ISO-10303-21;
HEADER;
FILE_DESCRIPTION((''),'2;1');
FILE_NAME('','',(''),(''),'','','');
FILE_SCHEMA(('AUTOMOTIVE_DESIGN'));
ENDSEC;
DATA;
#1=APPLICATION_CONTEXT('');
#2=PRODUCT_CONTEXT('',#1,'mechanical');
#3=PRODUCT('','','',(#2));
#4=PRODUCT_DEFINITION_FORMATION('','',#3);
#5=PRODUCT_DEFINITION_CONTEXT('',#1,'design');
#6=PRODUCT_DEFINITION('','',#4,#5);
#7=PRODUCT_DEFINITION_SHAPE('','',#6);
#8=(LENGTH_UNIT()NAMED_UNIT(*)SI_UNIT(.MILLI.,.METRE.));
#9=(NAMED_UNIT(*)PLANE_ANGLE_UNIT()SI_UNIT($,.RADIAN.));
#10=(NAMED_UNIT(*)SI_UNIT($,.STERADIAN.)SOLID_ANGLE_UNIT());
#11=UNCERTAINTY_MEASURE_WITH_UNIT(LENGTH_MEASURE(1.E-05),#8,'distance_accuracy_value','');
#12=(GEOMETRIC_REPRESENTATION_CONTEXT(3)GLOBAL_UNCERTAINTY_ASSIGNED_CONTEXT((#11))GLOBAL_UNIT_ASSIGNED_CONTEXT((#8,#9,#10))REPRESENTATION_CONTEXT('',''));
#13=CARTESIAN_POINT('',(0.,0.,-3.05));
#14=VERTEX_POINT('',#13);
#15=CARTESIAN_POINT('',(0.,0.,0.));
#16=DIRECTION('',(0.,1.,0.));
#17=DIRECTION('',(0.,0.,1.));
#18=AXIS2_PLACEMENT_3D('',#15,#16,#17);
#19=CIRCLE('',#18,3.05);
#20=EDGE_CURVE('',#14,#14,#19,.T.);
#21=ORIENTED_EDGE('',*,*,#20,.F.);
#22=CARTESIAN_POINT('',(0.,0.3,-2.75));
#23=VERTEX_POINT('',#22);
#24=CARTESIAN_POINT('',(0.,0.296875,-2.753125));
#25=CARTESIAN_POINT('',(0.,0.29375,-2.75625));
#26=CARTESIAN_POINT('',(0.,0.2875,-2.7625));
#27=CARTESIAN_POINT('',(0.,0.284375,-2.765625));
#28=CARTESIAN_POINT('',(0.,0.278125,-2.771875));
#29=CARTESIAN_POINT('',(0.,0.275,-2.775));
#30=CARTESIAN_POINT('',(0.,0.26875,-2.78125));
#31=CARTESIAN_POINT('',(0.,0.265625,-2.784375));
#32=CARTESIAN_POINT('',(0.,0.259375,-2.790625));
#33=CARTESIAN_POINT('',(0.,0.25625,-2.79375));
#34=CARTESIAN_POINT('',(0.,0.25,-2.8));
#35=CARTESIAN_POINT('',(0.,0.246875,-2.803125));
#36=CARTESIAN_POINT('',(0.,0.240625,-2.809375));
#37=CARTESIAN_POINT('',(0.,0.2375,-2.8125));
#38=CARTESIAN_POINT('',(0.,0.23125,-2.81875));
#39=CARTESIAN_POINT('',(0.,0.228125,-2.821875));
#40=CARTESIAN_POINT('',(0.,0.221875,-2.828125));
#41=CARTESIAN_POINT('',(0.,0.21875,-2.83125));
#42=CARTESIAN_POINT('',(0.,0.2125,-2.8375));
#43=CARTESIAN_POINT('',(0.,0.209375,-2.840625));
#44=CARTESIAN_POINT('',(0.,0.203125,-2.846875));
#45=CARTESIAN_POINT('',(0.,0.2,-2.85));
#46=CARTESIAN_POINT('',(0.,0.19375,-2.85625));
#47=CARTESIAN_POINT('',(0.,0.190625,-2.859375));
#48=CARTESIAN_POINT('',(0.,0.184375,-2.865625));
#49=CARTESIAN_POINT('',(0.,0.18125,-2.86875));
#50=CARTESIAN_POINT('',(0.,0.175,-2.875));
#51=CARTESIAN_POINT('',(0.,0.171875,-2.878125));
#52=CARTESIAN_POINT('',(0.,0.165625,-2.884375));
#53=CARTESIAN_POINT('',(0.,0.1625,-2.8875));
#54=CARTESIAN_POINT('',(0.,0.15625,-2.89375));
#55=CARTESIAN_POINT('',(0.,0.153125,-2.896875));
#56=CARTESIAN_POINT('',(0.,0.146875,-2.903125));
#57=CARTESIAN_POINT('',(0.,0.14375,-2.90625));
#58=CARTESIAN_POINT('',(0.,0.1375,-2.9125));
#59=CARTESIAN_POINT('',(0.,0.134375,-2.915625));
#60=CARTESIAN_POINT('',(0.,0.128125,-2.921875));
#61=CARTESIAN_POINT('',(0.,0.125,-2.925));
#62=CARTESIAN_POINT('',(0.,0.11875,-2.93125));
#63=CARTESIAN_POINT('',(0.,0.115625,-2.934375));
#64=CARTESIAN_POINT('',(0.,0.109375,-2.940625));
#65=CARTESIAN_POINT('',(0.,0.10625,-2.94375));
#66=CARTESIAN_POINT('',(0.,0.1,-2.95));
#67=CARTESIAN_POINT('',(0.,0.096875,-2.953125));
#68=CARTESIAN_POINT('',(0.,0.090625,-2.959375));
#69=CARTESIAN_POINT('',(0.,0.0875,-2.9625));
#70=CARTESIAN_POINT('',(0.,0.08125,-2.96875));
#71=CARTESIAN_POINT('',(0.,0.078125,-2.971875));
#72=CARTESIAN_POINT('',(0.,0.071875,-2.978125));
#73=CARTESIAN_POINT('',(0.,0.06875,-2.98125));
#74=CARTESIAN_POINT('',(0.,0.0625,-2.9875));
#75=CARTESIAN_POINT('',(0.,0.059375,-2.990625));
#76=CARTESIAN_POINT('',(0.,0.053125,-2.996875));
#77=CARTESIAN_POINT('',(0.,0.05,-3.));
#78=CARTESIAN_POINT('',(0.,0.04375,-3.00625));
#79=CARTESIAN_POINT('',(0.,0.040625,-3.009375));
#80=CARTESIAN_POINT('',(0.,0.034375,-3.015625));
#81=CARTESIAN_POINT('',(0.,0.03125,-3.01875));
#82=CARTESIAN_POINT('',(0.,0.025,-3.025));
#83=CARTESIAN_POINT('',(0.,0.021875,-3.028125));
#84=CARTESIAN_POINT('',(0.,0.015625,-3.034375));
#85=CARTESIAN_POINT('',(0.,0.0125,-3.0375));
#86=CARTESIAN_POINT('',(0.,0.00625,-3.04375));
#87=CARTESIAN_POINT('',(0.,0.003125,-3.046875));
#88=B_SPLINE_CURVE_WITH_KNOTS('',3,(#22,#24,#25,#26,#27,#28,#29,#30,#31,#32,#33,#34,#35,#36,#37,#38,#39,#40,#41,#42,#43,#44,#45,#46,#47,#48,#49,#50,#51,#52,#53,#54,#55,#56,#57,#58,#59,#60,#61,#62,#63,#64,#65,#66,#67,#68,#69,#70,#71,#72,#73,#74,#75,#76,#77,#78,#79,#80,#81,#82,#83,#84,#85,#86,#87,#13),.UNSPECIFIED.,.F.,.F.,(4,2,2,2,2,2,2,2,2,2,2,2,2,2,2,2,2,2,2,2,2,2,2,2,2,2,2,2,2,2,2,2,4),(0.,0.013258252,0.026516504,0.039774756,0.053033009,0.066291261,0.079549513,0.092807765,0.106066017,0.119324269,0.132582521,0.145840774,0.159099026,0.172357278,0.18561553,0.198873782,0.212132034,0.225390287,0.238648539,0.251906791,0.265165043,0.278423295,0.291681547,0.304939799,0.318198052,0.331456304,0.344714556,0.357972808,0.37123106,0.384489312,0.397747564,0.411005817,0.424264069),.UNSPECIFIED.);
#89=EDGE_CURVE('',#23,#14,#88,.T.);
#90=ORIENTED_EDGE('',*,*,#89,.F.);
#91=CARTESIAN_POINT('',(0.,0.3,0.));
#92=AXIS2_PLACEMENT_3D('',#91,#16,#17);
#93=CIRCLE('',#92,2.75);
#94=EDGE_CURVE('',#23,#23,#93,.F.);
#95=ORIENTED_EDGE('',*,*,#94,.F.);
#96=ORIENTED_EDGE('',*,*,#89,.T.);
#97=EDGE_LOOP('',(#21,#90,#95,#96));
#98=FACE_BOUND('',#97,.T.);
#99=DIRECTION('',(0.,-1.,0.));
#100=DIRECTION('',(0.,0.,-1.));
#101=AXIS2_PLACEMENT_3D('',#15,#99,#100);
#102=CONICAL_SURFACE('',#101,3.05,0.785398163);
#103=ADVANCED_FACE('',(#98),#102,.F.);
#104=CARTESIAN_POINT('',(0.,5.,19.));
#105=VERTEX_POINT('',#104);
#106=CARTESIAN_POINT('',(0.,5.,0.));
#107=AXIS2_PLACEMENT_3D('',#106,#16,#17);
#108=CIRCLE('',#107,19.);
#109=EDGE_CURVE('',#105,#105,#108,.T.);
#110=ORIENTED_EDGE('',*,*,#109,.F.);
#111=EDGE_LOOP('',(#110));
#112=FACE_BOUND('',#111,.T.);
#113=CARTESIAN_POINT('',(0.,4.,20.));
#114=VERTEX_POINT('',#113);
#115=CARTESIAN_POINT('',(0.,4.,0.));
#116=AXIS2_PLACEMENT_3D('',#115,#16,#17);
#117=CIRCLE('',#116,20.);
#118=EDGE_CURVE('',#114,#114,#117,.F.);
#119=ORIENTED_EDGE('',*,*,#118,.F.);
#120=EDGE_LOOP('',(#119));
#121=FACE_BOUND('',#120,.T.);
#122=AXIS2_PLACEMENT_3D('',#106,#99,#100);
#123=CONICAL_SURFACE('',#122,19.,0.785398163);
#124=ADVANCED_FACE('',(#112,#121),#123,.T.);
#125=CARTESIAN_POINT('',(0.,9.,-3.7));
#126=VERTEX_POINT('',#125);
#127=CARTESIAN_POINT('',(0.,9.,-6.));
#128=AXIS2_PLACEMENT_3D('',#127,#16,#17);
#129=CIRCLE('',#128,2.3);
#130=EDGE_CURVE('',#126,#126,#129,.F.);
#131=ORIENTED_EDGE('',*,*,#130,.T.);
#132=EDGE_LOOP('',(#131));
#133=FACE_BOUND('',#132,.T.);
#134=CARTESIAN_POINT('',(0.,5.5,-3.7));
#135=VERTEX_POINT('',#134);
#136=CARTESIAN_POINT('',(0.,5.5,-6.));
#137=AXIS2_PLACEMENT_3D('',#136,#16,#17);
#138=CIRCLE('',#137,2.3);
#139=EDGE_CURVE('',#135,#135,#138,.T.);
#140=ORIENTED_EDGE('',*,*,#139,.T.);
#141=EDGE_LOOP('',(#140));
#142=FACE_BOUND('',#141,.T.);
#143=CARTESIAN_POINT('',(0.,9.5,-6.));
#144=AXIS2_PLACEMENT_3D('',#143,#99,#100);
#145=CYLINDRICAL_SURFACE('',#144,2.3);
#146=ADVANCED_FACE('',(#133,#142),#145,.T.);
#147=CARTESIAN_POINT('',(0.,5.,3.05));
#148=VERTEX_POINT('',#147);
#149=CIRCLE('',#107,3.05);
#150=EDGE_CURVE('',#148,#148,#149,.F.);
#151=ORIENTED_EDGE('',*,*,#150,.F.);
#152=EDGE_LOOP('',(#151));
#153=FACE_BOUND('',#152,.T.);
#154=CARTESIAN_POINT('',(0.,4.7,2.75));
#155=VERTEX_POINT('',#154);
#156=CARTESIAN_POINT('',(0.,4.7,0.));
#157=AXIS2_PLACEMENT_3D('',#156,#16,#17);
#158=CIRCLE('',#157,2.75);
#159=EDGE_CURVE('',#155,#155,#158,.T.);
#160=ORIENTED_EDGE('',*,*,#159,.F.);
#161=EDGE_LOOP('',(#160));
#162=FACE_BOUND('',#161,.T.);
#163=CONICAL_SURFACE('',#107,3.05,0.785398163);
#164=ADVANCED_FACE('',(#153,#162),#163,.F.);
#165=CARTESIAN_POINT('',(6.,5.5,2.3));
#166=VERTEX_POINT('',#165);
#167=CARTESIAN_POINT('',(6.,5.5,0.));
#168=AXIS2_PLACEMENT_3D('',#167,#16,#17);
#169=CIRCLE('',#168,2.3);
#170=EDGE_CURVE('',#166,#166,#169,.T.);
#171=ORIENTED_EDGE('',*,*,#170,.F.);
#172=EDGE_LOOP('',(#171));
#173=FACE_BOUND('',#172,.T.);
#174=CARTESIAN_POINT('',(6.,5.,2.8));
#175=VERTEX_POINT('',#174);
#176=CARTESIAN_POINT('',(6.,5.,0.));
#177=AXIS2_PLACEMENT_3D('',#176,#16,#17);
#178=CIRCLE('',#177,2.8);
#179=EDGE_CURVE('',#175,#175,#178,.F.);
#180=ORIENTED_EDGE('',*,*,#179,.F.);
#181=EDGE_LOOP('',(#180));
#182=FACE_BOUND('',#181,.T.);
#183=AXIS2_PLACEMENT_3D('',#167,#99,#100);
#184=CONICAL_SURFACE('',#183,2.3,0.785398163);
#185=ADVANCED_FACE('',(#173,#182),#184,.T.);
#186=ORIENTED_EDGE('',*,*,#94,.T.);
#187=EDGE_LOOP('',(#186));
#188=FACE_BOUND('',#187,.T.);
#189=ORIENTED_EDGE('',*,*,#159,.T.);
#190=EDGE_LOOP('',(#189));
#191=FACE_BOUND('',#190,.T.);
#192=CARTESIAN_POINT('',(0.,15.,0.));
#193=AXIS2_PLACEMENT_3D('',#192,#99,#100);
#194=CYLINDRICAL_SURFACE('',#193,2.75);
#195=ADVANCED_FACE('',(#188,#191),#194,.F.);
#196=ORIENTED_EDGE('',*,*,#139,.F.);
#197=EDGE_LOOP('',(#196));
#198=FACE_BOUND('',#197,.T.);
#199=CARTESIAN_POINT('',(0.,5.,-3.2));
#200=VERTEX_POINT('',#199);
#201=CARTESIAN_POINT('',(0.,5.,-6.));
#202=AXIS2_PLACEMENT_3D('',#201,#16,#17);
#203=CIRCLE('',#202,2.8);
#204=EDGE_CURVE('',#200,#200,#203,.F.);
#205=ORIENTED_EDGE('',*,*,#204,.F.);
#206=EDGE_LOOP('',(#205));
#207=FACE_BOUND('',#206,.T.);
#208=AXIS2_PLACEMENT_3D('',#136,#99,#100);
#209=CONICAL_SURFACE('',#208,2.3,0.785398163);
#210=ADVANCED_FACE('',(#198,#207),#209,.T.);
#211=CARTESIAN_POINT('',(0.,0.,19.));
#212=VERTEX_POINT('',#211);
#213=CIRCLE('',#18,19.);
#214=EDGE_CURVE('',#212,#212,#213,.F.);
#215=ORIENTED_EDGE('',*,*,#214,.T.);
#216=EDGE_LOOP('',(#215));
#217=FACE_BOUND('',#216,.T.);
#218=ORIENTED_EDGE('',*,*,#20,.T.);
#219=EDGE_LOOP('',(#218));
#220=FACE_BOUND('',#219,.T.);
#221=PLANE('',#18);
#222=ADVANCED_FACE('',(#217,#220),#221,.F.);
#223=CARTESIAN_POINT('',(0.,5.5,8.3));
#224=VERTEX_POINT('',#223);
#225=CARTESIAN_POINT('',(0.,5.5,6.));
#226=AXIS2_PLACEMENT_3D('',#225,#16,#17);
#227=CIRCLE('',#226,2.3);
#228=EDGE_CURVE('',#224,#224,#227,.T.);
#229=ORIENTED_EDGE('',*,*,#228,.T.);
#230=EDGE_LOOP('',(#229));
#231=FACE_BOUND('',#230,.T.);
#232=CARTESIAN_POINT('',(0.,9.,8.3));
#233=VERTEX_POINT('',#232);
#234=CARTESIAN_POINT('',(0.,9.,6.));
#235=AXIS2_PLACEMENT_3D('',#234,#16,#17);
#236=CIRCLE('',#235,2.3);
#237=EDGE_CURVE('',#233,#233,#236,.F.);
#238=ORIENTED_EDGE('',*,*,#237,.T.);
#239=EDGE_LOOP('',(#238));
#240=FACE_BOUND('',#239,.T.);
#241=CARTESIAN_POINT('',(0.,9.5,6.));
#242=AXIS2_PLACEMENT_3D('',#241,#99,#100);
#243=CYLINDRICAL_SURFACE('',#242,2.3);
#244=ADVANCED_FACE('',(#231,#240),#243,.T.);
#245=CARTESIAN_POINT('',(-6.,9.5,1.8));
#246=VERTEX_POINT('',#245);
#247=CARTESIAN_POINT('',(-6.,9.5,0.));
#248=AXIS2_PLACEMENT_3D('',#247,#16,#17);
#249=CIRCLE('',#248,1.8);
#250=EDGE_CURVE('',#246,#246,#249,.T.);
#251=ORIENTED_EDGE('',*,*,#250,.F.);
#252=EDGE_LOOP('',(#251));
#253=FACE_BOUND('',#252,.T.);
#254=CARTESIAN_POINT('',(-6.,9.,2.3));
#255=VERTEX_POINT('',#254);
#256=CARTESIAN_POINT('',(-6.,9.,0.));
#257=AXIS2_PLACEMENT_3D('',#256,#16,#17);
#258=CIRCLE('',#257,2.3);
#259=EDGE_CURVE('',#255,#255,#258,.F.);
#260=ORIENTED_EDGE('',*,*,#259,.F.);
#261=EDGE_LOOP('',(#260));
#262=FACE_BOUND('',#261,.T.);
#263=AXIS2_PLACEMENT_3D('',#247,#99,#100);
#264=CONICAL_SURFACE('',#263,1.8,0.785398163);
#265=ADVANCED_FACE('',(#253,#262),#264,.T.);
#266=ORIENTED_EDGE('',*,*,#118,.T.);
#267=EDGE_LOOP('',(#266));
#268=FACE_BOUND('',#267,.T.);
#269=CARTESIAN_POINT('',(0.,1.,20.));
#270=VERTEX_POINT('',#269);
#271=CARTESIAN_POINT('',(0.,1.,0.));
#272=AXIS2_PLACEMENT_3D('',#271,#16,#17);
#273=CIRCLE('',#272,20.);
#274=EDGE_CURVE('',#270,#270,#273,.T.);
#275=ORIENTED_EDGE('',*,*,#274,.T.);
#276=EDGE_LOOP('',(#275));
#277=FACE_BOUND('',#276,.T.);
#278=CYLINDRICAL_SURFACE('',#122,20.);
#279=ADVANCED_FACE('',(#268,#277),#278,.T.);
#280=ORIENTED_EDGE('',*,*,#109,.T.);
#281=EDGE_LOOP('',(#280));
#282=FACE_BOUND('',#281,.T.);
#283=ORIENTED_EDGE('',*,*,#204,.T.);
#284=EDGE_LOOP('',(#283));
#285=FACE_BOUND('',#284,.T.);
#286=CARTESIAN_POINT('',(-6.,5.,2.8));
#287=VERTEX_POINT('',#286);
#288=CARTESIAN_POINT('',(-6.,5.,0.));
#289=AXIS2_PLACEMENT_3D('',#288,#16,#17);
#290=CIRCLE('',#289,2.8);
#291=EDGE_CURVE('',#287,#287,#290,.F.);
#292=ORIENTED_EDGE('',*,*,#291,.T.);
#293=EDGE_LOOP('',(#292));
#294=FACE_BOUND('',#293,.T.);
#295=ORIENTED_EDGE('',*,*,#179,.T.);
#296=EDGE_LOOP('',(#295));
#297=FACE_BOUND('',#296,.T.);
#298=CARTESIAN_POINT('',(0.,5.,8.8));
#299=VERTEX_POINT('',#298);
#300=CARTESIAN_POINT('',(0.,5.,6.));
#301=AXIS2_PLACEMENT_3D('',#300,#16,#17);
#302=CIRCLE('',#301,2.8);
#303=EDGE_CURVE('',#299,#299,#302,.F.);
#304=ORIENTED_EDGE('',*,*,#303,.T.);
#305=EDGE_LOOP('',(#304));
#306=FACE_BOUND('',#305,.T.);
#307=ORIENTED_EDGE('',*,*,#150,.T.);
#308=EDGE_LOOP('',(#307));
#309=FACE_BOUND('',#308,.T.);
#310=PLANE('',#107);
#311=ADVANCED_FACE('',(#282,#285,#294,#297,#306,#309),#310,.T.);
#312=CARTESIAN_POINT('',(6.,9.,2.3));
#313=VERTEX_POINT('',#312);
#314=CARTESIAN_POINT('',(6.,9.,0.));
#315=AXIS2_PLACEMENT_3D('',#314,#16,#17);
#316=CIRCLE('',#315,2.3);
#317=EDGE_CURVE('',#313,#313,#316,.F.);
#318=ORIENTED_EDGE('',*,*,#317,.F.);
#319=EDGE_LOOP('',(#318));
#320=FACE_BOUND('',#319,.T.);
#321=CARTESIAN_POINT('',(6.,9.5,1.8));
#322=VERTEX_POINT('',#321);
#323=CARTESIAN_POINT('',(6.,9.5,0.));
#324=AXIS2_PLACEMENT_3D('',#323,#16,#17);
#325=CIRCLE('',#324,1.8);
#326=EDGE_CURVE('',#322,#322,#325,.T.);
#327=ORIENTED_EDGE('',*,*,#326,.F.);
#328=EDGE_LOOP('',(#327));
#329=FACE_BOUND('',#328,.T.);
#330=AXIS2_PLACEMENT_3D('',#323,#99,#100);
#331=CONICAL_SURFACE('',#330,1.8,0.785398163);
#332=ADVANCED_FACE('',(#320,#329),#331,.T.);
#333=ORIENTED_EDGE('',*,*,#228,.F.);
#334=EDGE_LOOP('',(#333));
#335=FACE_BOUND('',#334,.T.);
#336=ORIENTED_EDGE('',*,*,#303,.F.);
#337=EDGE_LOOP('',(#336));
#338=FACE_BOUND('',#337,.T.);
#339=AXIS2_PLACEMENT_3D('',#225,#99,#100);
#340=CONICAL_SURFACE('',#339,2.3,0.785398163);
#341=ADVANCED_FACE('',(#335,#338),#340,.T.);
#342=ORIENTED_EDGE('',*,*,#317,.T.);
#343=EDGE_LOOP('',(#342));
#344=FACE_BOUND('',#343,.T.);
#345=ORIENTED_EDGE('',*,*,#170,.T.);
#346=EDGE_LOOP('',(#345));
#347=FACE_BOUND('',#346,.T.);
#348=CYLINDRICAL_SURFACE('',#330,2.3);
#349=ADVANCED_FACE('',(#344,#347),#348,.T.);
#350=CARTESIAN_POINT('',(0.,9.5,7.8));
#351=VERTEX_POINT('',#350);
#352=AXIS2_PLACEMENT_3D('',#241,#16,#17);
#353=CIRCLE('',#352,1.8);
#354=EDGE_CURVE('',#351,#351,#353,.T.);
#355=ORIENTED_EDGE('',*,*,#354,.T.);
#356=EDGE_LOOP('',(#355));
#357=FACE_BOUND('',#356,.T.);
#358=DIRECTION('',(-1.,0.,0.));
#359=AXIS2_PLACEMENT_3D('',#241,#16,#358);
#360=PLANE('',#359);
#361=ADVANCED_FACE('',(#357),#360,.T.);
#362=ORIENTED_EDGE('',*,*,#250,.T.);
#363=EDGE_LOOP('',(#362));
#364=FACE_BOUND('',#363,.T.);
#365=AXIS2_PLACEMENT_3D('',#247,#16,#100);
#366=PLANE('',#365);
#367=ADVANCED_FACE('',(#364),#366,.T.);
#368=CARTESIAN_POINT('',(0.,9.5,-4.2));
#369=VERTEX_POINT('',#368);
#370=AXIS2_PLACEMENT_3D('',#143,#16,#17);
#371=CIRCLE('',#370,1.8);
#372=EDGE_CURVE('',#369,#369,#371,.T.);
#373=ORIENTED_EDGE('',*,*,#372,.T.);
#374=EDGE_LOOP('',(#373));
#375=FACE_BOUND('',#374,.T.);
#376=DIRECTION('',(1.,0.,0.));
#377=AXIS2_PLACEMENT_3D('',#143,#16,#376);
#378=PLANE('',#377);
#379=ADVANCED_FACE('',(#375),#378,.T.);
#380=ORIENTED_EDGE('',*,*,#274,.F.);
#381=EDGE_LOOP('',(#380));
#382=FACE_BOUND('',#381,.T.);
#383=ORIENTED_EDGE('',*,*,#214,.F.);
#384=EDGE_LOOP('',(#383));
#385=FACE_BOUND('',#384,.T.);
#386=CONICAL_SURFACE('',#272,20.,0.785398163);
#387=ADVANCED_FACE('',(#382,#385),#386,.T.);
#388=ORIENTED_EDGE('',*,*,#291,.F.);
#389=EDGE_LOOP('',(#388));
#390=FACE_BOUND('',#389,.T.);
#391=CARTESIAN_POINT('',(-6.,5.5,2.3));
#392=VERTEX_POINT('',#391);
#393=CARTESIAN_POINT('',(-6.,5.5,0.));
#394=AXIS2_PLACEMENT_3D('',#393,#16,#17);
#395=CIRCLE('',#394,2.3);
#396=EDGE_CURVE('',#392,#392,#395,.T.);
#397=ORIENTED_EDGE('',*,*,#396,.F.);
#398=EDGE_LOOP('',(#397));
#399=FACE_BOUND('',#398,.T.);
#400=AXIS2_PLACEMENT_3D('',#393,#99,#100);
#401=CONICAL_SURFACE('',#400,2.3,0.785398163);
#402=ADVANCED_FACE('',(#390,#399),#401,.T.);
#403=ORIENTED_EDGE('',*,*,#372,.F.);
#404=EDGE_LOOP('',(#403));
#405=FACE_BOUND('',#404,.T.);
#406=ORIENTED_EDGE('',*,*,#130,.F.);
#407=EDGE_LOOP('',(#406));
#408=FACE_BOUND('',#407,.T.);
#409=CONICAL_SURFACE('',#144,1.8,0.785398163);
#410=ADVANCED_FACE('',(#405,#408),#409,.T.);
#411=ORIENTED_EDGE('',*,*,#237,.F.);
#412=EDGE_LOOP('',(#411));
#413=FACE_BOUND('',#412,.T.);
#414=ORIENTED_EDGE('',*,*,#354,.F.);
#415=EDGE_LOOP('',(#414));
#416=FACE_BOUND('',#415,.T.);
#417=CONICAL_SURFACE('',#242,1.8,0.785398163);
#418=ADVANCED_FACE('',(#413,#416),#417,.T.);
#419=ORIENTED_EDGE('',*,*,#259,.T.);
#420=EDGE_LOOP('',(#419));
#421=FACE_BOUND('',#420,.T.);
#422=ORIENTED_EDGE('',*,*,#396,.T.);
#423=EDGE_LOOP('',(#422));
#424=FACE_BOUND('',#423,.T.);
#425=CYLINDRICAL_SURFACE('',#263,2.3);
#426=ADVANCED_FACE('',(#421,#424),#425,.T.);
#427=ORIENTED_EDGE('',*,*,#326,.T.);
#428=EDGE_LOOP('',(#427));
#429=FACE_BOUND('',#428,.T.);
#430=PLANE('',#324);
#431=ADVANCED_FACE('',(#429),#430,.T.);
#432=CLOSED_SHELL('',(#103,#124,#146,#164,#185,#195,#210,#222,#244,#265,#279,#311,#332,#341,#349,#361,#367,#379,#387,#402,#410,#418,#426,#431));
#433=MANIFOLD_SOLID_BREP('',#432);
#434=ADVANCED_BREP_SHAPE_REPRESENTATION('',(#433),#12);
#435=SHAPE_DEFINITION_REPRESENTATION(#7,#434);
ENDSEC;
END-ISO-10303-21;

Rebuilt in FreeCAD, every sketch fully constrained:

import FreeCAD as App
import Part
import Sketcher


def edges_at(feature, points):
    """Names of the edges that pass closest to the given points."""
    edges = feature.Shape.Edges
    near = lambda p: min(range(len(edges)), key=lambda i: edges[i].distToShape(Part.Vertex(*p))[0])
    return sorted({f"Edge{near(p) + 1}" for p in points})

doc = App.newDocument("Part")
body = doc.addObject("PartDesign::Body", "Body")

sketch1 = body.newObject("Sketcher::SketchObject", "Sketch")
sketch1.AttachmentSupport = (doc.getObject("XZ_Plane"), [""])
sketch1.MapMode = "FlatFace"
sketch1.addGeometry(Part.Circle(App.Vector(0, 0, 0), App.Vector(0, 0, 1), 20), False)
sketch1.addConstraint(Sketcher.Constraint("Coincident", 0, 3, -1, 1))
sketch1.addConstraint(Sketcher.Constraint("Diameter", 0, 40.0))
pad1 = body.newObject("PartDesign::Pad", "Pad")
pad1.Profile = sketch1
pad1.Length = 5
pad1.Reversed = True

sketch2 = body.newObject("Sketcher::SketchObject", "Sketch001")
sketch2.AttachmentSupport = (doc.getObject("XZ_Plane"), [""])
sketch2.MapMode = "FlatFace"
sketch2.addGeometry(Part.Circle(App.Vector(0, 0, 0), App.Vector(0, 0, 1), 2.8), False)
sketch2.addConstraint(Sketcher.Constraint("Coincident", 0, 3, -1, 1))
sketch2.addConstraint(Sketcher.Constraint("Diameter", 0, 5.5))
pocket1 = body.newObject("PartDesign::Pocket", "Pocket")
pocket1.Profile = sketch2
pocket1.Length = 15

sketch3 = body.newObject("Sketcher::SketchObject", "Sketch002")
sketch3.AttachmentSupport = (doc.getObject("XZ_Plane"), [""])
sketch3.MapMode = "FlatFace"
sketch3.AttachmentOffset = App.Placement(App.Vector(0, 0, -5), App.Rotation())
sketch3.addGeometry(Part.Circle(App.Vector(6, 0, 0), App.Vector(0, 0, 1), 2.3), False)
sketch3.addConstraint(Sketcher.Constraint("PointOnObject", 0, 3, -1))
sketch3.addConstraint(Sketcher.Constraint("Diameter", 0, 4.6))
sketch3.addConstraint(Sketcher.Constraint("DistanceX", -1, 1, 0, 3, 6.0))
pad2 = body.newObject("PartDesign::Pad", "Pad001")
pad2.Profile = sketch3
pad2.Length = 4.5
pad2.Reversed = True
doc.recompute()

chamfer = body.newObject("PartDesign::Chamfer", "Chamfer")
chamfer.Base = (pad2, edges_at(pad2, [(6, 5, -2.3), (6, 9.5, -2.3)]))
chamfer.Size = 0.5
doc.recompute()

polarpattern = body.newObject("PartDesign::PolarPattern", "PolarPattern")
polarpattern.Originals = [pad2]
polarpattern.Axis = (doc.getObject("Y_Axis"), [""])
polarpattern.Angle = 360
polarpattern.Occurrences = 4
body.Tip = polarpattern
doc.recompute()

chamfer2 = body.newObject("PartDesign::Chamfer", "Chamfer001")
chamfer2.Base = (polarpattern, edges_at(polarpattern, [
    (-2.3, 5, -6),
    (-2.3, 9.5, -6),
    (-6, 5, 2.3),
    (-6, 9.5, 2.3),
    (2.3, 5, 6),
    (2.3, 9.5, 6),
]))
chamfer2.Size = 0.5
doc.recompute()

chamfer3 = body.newObject("PartDesign::Chamfer", "Chamfer002")
chamfer3.Base = (chamfer2, edges_at(chamfer2, [(0, 5, -2.75), (0, 0, -2.75)]))
chamfer3.Size = 0.3
doc.recompute()

chamfer4 = body.newObject("PartDesign::Chamfer", "Chamfer003")
chamfer4.Base = (chamfer3, edges_at(chamfer3, [(0, 0, -20), (0, 5, -20)]))
chamfer4.Size = 1

doc.recompute()
